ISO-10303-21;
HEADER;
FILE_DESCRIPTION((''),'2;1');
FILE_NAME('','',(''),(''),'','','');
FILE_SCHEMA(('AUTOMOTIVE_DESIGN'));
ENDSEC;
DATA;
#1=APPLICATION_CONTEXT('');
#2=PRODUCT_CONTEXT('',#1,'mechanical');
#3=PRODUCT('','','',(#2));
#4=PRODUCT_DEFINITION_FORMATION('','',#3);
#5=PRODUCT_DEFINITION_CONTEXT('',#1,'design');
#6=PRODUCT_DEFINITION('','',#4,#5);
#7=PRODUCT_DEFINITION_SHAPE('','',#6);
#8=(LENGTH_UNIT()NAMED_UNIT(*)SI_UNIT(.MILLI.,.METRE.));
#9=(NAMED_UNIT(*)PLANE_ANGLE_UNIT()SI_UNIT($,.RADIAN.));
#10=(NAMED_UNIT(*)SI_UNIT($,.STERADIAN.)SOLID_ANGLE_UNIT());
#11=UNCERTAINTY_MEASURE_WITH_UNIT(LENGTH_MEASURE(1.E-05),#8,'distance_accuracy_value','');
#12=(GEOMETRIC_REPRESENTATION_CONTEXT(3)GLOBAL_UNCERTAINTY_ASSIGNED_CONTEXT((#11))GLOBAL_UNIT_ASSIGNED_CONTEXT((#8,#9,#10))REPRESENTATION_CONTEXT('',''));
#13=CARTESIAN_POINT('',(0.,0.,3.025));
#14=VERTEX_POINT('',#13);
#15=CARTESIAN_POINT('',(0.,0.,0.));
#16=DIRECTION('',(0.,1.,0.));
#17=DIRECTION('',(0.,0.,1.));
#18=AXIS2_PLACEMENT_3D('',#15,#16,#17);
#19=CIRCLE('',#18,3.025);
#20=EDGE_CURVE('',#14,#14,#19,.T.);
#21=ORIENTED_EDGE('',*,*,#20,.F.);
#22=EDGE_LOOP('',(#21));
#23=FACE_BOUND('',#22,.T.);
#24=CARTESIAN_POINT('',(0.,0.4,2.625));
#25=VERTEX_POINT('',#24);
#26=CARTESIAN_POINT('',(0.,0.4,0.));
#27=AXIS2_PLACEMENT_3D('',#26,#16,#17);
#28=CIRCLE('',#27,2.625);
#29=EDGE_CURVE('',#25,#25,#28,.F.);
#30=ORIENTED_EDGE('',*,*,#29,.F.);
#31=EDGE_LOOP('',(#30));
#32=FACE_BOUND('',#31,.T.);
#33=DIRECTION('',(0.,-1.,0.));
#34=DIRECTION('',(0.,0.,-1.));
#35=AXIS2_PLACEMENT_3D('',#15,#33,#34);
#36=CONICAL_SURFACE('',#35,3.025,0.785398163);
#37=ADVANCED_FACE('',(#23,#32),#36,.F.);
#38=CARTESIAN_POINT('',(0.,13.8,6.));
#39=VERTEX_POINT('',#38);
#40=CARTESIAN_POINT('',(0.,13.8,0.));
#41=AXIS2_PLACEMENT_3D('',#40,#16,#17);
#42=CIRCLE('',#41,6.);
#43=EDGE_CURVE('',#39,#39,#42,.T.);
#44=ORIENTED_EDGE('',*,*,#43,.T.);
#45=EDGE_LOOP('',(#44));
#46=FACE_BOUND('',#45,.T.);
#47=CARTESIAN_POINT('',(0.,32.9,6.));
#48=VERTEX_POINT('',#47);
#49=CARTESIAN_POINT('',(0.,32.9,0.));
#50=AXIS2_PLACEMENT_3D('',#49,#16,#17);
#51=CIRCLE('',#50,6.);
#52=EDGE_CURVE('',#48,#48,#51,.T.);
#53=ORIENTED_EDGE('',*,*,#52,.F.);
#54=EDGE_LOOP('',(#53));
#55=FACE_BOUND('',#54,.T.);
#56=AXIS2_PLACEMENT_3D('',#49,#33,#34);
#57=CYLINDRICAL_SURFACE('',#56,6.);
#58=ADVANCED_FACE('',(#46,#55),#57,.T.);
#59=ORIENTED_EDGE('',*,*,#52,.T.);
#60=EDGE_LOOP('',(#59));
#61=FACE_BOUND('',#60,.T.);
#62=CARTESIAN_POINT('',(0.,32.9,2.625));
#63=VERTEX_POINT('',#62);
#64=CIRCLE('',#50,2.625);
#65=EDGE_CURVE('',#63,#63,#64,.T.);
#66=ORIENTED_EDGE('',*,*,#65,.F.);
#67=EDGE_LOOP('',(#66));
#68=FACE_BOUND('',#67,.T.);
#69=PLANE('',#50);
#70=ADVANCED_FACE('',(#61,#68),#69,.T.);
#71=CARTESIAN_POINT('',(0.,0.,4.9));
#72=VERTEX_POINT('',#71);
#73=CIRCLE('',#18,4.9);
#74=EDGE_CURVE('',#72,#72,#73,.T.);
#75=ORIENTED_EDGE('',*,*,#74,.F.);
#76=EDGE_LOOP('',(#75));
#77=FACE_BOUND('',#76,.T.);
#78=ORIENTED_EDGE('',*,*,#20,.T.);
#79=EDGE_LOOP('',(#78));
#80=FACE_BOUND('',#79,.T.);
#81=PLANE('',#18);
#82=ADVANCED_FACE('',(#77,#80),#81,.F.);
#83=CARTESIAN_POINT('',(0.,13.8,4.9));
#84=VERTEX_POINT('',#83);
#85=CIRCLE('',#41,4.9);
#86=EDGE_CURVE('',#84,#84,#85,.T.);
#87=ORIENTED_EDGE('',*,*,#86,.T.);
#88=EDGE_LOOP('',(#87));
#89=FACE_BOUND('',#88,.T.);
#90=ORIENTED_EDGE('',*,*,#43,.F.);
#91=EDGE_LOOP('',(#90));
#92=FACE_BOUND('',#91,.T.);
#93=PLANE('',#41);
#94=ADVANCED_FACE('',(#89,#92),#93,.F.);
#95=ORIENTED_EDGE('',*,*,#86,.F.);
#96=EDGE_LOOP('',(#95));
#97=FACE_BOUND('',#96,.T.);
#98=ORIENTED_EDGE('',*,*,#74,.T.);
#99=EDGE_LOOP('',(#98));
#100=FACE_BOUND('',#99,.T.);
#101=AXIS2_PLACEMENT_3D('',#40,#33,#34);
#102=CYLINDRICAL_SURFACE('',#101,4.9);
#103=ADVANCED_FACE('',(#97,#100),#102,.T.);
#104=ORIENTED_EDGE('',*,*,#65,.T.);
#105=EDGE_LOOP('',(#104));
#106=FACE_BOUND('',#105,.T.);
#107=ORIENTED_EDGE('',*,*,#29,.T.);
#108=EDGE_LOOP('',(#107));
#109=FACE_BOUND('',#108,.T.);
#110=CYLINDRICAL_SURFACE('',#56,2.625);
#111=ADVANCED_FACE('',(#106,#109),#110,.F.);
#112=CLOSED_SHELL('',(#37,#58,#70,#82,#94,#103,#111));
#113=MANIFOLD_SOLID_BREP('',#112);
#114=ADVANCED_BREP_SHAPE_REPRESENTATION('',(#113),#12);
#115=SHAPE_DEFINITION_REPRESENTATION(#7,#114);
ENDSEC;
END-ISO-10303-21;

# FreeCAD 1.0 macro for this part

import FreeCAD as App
import Part
import Sketcher

V = App.Vector
Q = App.Units.Quantity


def edges_at(feature, points):
    """Names of the edges that pass closest to the given points."""
    edges = feature.Shape.Edges
    near = lambda p: min(range(len(edges)), key=lambda i: edges[i].distToShape(Part.Vertex(*p))[0])
    return sorted({f"Edge{near(p) + 1}" for p in points})

doc = App.newDocument("Part")
body = doc.addObject("PartDesign::Body", "Body")

# Sketch on XZ plane
sketch1 = body.newObject("Sketcher::SketchObject", "Sketch")
sketch1.AttachmentSupport = (doc.getObject("XZ_Plane"), [""])
sketch1.MapMode = "FlatFace"
sketch1.addGeometry(Part.Circle(V(0, 0, 0), V(0, 0, 1), 4.9), False)
sketch1.addConstraint([
    Sketcher.Constraint("Coincident", 0, 3, -1, 1),
    Sketcher.Constraint("Diameter", 0, Q("9.8 mm")),
])
pad1 = body.newObject("PartDesign::Pad", "Pad")
pad1.Profile = sketch1
pad1.Length = 13.8
pad1.Reversed = True

# Sketch on XZ plane
sketch2 = body.newObject("Sketcher::SketchObject", "Sketch001")
sketch2.AttachmentSupport = (doc.getObject("XZ_Plane"), [""])
sketch2.MapMode = "FlatFace"
sketch2.AttachmentOffset = App.Placement(V(0, 0, -13.8), App.Rotation())
sketch2.addGeometry(Part.Circle(V(0, 0, 0), V(0, 0, 1), 6), False)
sketch2.addConstraint([
    Sketcher.Constraint("Coincident", 0, 3, -1, 1),
    Sketcher.Constraint("Diameter", 0, Q("12 mm")),
])
pad2 = body.newObject("PartDesign::Pad", "Pad001")
pad2.Profile = sketch2
pad2.Length = 19.1
pad2.Reversed = True

# Sketch on XZ plane
sketch3 = body.newObject("Sketcher::SketchObject", "Sketch002")
sketch3.AttachmentSupport = (doc.getObject("XZ_Plane"), [""])
sketch3.MapMode = "FlatFace"
sketch3.addGeometry(Part.Circle(V(0, 0, 0), V(0, 0, 1), 2.6), False)
sketch3.addConstraint([
    Sketcher.Constraint("Coincident", 0, 3, -1, 1),
    Sketcher.Constraint("Diameter", 0, Q("5.25 mm")),
])
pocket1 = body.newObject("PartDesign::Pocket", "Pocket")
pocket1.Profile = sketch3
pocket1.Type = "ThroughAll"
doc.recompute()

chamfer = body.newObject("PartDesign::Chamfer", "Chamfer")
chamfer.Base = (pocket1, edges_at(pocket1, [(-2.625, 0, 0)]))
chamfer.Size = 0.4

doc.recompute()
